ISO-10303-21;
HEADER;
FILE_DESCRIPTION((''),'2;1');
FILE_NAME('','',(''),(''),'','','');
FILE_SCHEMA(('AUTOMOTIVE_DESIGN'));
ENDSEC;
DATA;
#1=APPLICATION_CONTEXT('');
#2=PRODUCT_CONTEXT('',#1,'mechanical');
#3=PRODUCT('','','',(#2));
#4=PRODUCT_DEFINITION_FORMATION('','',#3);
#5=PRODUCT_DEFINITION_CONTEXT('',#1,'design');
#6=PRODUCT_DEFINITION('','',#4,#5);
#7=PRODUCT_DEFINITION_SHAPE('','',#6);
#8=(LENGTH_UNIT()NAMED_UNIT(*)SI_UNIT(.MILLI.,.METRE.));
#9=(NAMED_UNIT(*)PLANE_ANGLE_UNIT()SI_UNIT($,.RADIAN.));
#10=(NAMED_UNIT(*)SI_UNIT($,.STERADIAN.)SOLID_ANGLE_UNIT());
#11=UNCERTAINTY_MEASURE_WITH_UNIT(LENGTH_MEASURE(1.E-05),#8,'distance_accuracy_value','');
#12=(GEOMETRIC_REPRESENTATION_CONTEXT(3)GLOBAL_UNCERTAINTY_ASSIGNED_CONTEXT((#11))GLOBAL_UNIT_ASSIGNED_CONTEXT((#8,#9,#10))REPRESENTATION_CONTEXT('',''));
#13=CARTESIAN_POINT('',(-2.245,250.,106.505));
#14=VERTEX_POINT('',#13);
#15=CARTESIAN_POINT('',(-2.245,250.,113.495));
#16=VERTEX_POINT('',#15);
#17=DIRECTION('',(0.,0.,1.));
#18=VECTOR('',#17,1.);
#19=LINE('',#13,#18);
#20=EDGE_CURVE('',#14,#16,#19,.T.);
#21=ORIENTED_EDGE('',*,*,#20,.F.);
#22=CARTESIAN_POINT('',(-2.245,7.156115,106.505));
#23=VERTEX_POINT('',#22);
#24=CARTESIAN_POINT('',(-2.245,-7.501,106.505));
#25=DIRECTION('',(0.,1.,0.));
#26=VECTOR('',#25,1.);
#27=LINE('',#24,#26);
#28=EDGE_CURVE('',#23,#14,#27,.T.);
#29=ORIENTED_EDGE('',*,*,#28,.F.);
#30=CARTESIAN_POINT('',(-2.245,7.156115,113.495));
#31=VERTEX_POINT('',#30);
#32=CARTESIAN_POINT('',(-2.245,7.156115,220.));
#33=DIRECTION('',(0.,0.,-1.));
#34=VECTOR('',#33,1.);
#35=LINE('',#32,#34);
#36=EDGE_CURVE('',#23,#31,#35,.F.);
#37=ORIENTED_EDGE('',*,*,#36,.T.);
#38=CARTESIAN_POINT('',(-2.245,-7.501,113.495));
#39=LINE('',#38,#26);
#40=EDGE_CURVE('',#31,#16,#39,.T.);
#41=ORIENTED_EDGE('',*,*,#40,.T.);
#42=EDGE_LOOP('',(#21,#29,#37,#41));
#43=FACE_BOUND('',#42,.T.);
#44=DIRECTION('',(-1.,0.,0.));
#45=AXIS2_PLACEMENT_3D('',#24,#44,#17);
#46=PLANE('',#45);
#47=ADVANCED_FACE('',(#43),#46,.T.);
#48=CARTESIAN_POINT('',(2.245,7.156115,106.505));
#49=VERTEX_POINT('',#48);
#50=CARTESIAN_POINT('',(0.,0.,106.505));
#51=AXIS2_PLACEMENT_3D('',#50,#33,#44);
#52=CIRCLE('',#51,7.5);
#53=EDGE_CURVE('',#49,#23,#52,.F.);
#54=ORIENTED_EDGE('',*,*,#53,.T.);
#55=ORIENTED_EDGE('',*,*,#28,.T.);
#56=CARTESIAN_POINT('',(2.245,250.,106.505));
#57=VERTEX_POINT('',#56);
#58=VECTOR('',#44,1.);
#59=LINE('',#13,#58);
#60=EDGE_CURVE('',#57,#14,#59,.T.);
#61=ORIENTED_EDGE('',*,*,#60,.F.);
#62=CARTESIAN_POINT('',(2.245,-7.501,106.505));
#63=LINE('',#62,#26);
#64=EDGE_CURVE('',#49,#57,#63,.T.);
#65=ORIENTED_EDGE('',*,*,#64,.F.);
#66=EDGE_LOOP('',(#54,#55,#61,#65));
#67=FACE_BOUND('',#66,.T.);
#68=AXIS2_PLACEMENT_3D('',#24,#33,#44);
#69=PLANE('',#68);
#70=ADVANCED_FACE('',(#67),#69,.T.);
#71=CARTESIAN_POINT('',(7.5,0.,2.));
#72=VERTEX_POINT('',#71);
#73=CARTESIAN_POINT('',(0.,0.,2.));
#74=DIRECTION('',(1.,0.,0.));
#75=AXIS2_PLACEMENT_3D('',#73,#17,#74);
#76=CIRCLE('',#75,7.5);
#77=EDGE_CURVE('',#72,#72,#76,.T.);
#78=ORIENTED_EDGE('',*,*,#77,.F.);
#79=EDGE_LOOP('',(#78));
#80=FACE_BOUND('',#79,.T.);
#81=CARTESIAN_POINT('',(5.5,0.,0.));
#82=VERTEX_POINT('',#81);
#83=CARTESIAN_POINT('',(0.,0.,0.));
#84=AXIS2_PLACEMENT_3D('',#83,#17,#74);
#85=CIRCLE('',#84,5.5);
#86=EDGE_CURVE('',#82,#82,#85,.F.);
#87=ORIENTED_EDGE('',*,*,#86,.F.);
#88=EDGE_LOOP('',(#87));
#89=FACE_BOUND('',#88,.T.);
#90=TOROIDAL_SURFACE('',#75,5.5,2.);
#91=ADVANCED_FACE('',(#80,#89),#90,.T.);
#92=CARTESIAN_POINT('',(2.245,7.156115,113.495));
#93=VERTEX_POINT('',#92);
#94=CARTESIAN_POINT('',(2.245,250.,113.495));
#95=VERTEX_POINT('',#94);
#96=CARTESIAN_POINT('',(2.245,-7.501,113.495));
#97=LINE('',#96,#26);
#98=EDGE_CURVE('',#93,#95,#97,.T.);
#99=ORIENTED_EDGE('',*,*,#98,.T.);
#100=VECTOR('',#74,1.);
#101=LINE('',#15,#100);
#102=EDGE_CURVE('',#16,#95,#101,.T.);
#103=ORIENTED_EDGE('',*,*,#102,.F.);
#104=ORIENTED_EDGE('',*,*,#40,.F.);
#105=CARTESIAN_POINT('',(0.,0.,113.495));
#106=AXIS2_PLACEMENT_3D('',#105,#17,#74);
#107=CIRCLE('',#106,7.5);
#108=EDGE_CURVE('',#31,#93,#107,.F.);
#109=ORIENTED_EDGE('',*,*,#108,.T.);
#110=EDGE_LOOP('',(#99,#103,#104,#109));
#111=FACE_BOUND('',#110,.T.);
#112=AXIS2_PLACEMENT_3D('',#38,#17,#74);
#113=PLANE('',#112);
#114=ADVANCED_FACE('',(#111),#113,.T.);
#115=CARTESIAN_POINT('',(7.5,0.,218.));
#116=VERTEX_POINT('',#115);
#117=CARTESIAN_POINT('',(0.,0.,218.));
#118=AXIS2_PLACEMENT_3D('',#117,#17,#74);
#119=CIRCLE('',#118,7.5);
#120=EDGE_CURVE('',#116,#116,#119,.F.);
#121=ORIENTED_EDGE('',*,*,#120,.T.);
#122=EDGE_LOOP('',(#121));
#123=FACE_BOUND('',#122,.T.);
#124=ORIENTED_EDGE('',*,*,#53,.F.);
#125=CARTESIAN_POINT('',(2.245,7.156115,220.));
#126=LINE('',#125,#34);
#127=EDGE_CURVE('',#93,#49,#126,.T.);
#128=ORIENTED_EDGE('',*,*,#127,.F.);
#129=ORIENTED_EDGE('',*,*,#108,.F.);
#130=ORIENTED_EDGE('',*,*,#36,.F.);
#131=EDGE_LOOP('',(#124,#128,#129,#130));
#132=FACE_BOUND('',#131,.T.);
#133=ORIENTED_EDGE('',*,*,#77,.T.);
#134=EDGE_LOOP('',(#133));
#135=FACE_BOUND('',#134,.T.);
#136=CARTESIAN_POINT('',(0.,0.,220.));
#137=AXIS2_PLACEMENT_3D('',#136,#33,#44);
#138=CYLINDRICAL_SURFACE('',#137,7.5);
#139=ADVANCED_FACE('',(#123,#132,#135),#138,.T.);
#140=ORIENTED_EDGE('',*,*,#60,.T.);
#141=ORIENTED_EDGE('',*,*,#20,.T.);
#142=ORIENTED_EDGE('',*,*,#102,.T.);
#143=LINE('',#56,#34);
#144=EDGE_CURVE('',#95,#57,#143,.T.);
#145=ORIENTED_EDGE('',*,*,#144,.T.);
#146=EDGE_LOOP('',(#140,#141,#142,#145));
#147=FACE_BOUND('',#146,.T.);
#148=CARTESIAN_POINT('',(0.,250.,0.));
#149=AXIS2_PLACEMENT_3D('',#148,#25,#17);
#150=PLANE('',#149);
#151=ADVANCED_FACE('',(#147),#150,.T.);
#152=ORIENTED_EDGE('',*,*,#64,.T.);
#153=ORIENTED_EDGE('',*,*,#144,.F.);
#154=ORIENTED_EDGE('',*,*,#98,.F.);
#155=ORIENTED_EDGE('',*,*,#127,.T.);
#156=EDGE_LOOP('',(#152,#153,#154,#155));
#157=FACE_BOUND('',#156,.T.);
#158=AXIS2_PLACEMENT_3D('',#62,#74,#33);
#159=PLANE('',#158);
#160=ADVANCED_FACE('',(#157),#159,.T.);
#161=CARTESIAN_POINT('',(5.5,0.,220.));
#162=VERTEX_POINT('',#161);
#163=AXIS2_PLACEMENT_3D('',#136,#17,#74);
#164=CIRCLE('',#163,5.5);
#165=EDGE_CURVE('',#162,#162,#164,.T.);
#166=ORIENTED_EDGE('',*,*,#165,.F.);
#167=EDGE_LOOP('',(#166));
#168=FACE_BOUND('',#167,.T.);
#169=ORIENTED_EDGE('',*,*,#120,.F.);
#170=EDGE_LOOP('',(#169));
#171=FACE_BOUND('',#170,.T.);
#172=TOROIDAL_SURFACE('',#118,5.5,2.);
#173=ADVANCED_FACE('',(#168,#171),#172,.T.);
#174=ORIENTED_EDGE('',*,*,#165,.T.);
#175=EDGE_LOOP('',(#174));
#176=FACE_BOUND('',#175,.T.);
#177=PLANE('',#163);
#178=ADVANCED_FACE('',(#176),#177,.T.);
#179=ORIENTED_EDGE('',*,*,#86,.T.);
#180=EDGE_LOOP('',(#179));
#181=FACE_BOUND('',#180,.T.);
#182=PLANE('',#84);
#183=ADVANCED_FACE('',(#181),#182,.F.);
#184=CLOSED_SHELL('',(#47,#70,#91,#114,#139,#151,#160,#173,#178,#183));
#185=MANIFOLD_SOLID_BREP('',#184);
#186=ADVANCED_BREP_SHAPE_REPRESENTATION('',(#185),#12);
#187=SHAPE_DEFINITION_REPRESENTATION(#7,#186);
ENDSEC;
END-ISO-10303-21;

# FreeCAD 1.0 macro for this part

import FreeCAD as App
import Part
import Sketcher

V = App.Vector
Q = App.Units.Quantity


def edges_at(feature, points):
    """Names of the edges that pass closest to the given points."""
    edges = feature.Shape.Edges
    near = lambda p: min(range(len(edges)), key=lambda i: edges[i].distToShape(Part.Vertex(*p))[0])
    return sorted({f"Edge{near(p) + 1}" for p in points})

doc = App.newDocument("Part")
body = doc.addObject("PartDesign::Body", "Body")

# Sketch on XY plane
sketch1 = body.newObject("Sketcher::SketchObject", "Sketch")
sketch1.AttachmentSupport = (doc.getObject("XY_Plane"), [""])
sketch1.MapMode = "FlatFace"
sketch1.addGeometry(Part.Circle(V(0, 0, 0), V(0, 0, 1), 8), False)
sketch1.addConstraint([
    Sketcher.Constraint("Coincident", 0, 3, -1, 1),
    Sketcher.Constraint("Diameter", 0, Q("15 mm")),
])
pad1 = body.newObject("PartDesign::Pad", "Pad")
pad1.Profile = sketch1
pad1.Length = 220
doc.recompute()

fillet = body.newObject("PartDesign::Fillet", "Fillet")
fillet.Base = (pad1, edges_at(pad1, [(-7.5, 0, 0), (-7.5, 0, 220)]))
fillet.Radius = 2

# Sketch on XZ plane
sketch2 = body.newObject("Sketcher::SketchObject", "Sketch001")
sketch2.AttachmentSupport = (doc.getObject("XZ_Plane"), [""])
sketch2.MapMode = "FlatFace"
sketch2.AttachmentOffset = App.Placement(V(0, 0, -250), App.Rotation())
sketch2.addGeometry([
    Part.LineSegment(V(-2.2, 106.5, 0), V(-2.2, 113.5, 0)),
    Part.LineSegment(V(-2.2, 113.5, 0), V(2.2, 113.5, 0)),
    Part.LineSegment(V(2.2, 113.5, 0), V(2.2, 106.5, 0)),
    Part.LineSegment(V(2.2, 106.5, 0), V(-2.2, 106.5, 0)),
], False)
sketch2.addConstraint([
    Sketcher.Constraint("Coincident", 0, 2, 1, 1),
    Sketcher.Constraint("Coincident", 1, 2, 2, 1),
    Sketcher.Constraint("Coincident", 2, 2, 3, 1),
    Sketcher.Constraint("Coincident", 3, 2, 0, 1),
    Sketcher.Constraint("Vertical", 0),
    Sketcher.Constraint("Horizontal", 1),
    Sketcher.Constraint("Vertical", 2),
    Sketcher.Constraint("Horizontal", 3),
    Sketcher.Constraint("DistanceX", 1, 1, 1, 2, Q("4.49 mm")),
    Sketcher.Constraint("DistanceY", 0, 1, 0, 2, Q("6.99 mm")),
    Sketcher.Constraint("DistanceX", 0, 2, -1, 1, Q("2.245 mm")),
    Sketcher.Constraint("DistanceY", -1, 1, 0, 2, Q("113.495 mm")),
])
pad2 = body.newObject("PartDesign::Pad", "Pad001")
pad2.Profile = sketch2
pad2.Type = "UpToFirst"

doc.recompute()
